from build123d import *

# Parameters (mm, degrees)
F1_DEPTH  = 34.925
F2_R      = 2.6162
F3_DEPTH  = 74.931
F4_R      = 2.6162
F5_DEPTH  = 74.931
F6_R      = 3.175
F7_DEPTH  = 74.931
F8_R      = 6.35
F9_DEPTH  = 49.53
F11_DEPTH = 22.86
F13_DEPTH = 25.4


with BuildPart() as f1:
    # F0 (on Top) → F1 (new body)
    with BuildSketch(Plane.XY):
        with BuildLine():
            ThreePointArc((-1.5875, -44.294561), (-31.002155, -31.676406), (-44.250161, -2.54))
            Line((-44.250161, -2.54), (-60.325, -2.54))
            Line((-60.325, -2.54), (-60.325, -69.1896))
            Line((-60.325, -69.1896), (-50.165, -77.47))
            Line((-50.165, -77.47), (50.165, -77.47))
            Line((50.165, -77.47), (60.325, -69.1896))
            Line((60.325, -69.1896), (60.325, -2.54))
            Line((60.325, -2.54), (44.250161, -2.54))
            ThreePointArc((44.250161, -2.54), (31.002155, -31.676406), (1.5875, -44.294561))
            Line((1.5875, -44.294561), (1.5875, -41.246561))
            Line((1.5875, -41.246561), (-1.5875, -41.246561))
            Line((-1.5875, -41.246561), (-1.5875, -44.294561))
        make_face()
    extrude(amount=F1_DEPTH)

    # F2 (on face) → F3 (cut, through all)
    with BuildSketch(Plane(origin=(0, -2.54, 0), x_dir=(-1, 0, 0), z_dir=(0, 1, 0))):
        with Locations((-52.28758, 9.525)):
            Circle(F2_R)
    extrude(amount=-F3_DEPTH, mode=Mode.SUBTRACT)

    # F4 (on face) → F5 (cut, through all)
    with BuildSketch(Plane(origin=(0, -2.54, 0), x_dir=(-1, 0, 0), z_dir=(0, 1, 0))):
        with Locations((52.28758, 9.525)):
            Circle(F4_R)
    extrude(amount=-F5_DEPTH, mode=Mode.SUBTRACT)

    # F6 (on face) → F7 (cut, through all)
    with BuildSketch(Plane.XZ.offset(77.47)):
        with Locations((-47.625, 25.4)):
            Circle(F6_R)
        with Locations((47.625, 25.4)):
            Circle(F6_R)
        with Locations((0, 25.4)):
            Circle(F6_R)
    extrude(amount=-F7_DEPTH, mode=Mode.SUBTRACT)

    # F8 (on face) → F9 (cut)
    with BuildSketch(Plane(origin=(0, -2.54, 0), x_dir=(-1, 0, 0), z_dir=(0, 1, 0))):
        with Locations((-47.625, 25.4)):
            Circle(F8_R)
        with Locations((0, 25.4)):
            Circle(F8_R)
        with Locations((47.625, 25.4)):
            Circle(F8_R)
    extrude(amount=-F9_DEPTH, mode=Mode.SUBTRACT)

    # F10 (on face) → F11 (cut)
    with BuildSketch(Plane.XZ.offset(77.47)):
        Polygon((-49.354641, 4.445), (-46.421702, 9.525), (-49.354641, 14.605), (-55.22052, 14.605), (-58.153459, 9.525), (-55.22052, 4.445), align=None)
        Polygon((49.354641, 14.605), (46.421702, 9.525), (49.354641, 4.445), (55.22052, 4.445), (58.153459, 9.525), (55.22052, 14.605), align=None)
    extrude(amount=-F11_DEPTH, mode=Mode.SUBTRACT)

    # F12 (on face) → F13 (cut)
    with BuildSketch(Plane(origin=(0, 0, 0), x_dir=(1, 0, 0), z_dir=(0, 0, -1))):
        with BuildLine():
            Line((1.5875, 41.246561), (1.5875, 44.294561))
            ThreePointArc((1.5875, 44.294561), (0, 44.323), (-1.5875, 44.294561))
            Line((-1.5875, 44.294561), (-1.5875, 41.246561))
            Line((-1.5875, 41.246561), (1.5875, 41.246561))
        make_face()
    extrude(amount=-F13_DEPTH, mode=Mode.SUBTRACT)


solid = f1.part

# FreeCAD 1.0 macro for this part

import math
import FreeCAD as App
import Part
import Sketcher
Q = App.Units.Quantity

doc = App.newDocument("Part")
body = doc.addObject("PartDesign::Body", "Body")

# Sketch on XY plane
sketch1 = body.newObject("Sketcher::SketchObject", "Sketch")
sketch1.AttachmentSupport = (doc.getObject("XY_Plane"), [""])
sketch1.MapMode = "FlatFace"
sketch1.addGeometry(Part.ArcOfCircle(Part.Circle(App.Vector(0, 0, 0), App.Vector(0, 0, 1), 44.3), math.radians(-177), math.radians(-92)), False)
sketch1.addGeometry(Part.LineSegment(App.Vector(-44.3, -2.5, 0), App.Vector(-60.3, -2.5, 0)), False)
sketch1.addGeometry(Part.LineSegment(App.Vector(-60.3, -2.5, 0), App.Vector(-60.3, -69.2, 0)), False)
sketch1.addGeometry(Part.LineSegment(App.Vector(-60.3, -69.2, 0), App.Vector(-50.2, -77.5, 0)), False)
sketch1.addGeometry(Part.LineSegment(App.Vector(-50.2, -77.5, 0), App.Vector(50.2, -77.5, 0)), False)
sketch1.addGeometry(Part.LineSegment(App.Vector(50.2, -77.5, 0), App.Vector(60.3, -69.2, 0)), False)
sketch1.addGeometry(Part.LineSegment(App.Vector(60.3, -69.2, 0), App.Vector(60.3, -2.5, 0)), False)
sketch1.addGeometry(Part.LineSegment(App.Vector(60.3, -2.5, 0), App.Vector(44.3, -2.5, 0)), False)
sketch1.addGeometry(Part.ArcOfCircle(Part.Circle(App.Vector(0, 0, 0), App.Vector(0, 0, 1), 44.3), math.radians(-88), math.radians(-3)), False)
sketch1.addGeometry(Part.LineSegment(App.Vector(1.6, -44.3, 0), App.Vector(1.6, -41.2, 0)), False)
sketch1.addGeometry(Part.LineSegment(App.Vector(1.6, -41.2, 0), App.Vector(-1.6, -41.2, 0)), False)
sketch1.addGeometry(Part.LineSegment(App.Vector(-1.6, -41.2, 0), App.Vector(-1.6, -44.3, 0)), False)
sketch1.addConstraint(Sketcher.Constraint("Coincident", 0, 1, 1, 1))
sketch1.addConstraint(Sketcher.Constraint("Coincident", 1, 2, 2, 1))
sketch1.addConstraint(Sketcher.Constraint("Coincident", 2, 2, 3, 1))
sketch1.addConstraint(Sketcher.Constraint("Coincident", 3, 2, 4, 1))
sketch1.addConstraint(Sketcher.Constraint("Coincident", 4, 2, 5, 1))
sketch1.addConstraint(Sketcher.Constraint("Coincident", 5, 2, 6, 1))
sketch1.addConstraint(Sketcher.Constraint("Coincident", 6, 2, 7, 1))
sketch1.addConstraint(Sketcher.Constraint("Coincident", 7, 2, 8, 2))
sketch1.addConstraint(Sketcher.Constraint("Coincident", 8, 1, 9, 1))
sketch1.addConstraint(Sketcher.Constraint("Coincident", 9, 2, 10, 1))
sketch1.addConstraint(Sketcher.Constraint("Coincident", 10, 2, 11, 1))
sketch1.addConstraint(Sketcher.Constraint("Coincident", 11, 2, 0, 2))
sketch1.addConstraint(Sketcher.Constraint("Horizontal", 1))
sketch1.addConstraint(Sketcher.Constraint("Vertical", 2))
sketch1.addConstraint(Sketcher.Constraint("Horizontal", 4))
sketch1.addConstraint(Sketcher.Constraint("Vertical", 6))
sketch1.addConstraint(Sketcher.Constraint("Horizontal", 7))
sketch1.addConstraint(Sketcher.Constraint("Vertical", 9))
sketch1.addConstraint(Sketcher.Constraint("Horizontal", 10))
sketch1.addConstraint(Sketcher.Constraint("Vertical", 11))
sketch1.addConstraint(Sketcher.Constraint("Coincident", 0, 3, -1, 1))
sketch1.addConstraint(Sketcher.Constraint("Coincident", 8, 3, -1, 1))
sketch1.addConstraint(Sketcher.Constraint("Equal", 0, 8))
sketch1.addConstraint(Sketcher.Constraint("Symmetric", 2, 2, 5, 2, -2))
sketch1.addConstraint(Sketcher.Constraint("Horizontal", 1, 2, 6, 2))
sketch1.addConstraint(Sketcher.Constraint("Horizontal", 8, 1, 11, 2))
sketch1.addConstraint(Sketcher.Constraint("Equal", 3, 5))
sketch1.addConstraint(Sketcher.Constraint("Radius", 0, Q("1.745 in")))
sketch1.addConstraint(Sketcher.Constraint("DistanceX", 4, 1, 4, 2, Q("3.95 in")))
sketch1.addConstraint(Sketcher.Constraint("DistanceY", 9, 1, 9, 2, Q("0.12 in")))
sketch1.addConstraint(Sketcher.Constraint("DistanceY", 0, 1, -1, 1, Q("0.1 in")))
sketch1.addConstraint(Sketcher.Constraint("DistanceX", 2, 2, 3, 2, Q("0.4 in")))
sketch1.addConstraint(Sketcher.Constraint("DistanceX", 10, 2, 10, 1, Q("0.125 in")))
sketch1.addConstraint(Sketcher.Constraint("DistanceY", 2, 2, 2, 1, Q("2.624 in")))
sketch1.addConstraint(Sketcher.Constraint("DistanceY", 3, 2, -1, 1, Q("3.05 in")))
pad1 = body.newObject("PartDesign::Pad", "Pad")
pad1.Profile = sketch1
pad1.Length = Q("1.375 in")

# Sketch on XZ plane
sketch2 = body.newObject("Sketcher::SketchObject", "Sketch001")
sketch2.AttachmentSupport = (doc.getObject("XZ_Plane"), [""])
sketch2.MapMode = "FlatFace"
sketch2.AttachmentOffset = App.Placement(App.Vector(0, 0, 0.1 * 25.4), App.Rotation())
sketch2.addGeometry(Part.Circle(App.Vector(52.3, 9.5, 0), App.Vector(0, 0, 1), 2.6), False)
sketch2.addConstraint(Sketcher.Constraint("Diameter", 0, Q("0.206 in")))
sketch2.addConstraint(Sketcher.Constraint("DistanceY", -1, 1, 0, 3, Q("0.375 in")))
sketch2.addConstraint(Sketcher.Constraint("DistanceX", -1, 1, 0, 3, Q("52.28758 mm")))
pocket1 = body.newObject("PartDesign::Pocket", "Pocket")
pocket1.Profile = sketch2
pocket1.Type = "ThroughAll"
pocket1.Reversed = True

# Sketch on XZ plane
sketch3 = body.newObject("Sketcher::SketchObject", "Sketch002")
sketch3.AttachmentSupport = (doc.getObject("XZ_Plane"), [""])
sketch3.MapMode = "FlatFace"
sketch3.AttachmentOffset = App.Placement(App.Vector(0, 0, 0.1 * 25.4), App.Rotation())
sketch3.addGeometry(Part.Circle(App.Vector(-52.3, 9.5, 0), App.Vector(0, 0, 1), 2.6), False)
sketch3.addConstraint(Sketcher.Constraint("Diameter", 0, Q("0.206 in")))
sketch3.addConstraint(Sketcher.Constraint("DistanceY", -1, 1, 0, 3, Q("0.375 in")))
sketch3.addConstraint(Sketcher.Constraint("DistanceX", 0, 3, -1, 1, Q("52.28758 mm")))
pocket2 = body.newObject("PartDesign::Pocket", "Pocket001")
pocket2.Profile = sketch3
pocket2.Type = "ThroughAll"
pocket2.Reversed = True

# Sketch on XZ plane
sketch4 = body.newObject("Sketcher::SketchObject", "Sketch003")
sketch4.AttachmentSupport = (doc.getObject("XZ_Plane"), [""])
sketch4.MapMode = "FlatFace"
sketch4.AttachmentOffset = App.Placement(App.Vector(0, 0, 3.05 * 25.4), App.Rotation())
sketch4.addGeometry(Part.Circle(App.Vector(-47.6, 25.4, 0), App.Vector(0, 0, 1), 3.2), False)
sketch4.addGeometry(Part.Circle(App.Vector(47.6, 25.4, 0), App.Vector(0, 0, 1), 3.2), False)
sketch4.addGeometry(Part.Circle(App.Vector(0, 25.4, 0), App.Vector(0, 0, 1), 3.2), False)
sketch4.addConstraint(Sketcher.Constraint("Equal", 0, 1))
sketch4.addConstraint(Sketcher.Constraint("Equal", 1, 2))
sketch4.addConstraint(Sketcher.Constraint("Symmetric", 0, 3, 1, 3, -2))
sketch4.addConstraint(Sketcher.Constraint("PointOnObject", 2, 3, -2))
sketch4.addConstraint(Sketcher.Constraint("Horizontal", 1, 3, 2, 3))
sketch4.addConstraint(Sketcher.Constraint("Diameter", 0, Q("0.25 in")))
sketch4.addConstraint(Sketcher.Constraint("DistanceY", -1, 1, 0, 3, Q("1 in")))
sketch4.addConstraint(Sketcher.Constraint("DistanceX", 0, 3, 1, 3, Q("3.75 in")))
pocket3 = body.newObject("PartDesign::Pocket", "Pocket002")
pocket3.Profile = sketch4
pocket3.Type = "ThroughAll"

# Sketch on XZ plane
sketch5 = body.newObject("Sketcher::SketchObject", "Sketch004")
sketch5.AttachmentSupport = (doc.getObject("XZ_Plane"), [""])
sketch5.MapMode = "FlatFace"
sketch5.AttachmentOffset = App.Placement(App.Vector(0, 0, 0.1 * 25.4), App.Rotation())
sketch5.addGeometry(Part.Circle(App.Vector(48, 25, 0), App.Vector(0, 0, 1), 6), False)
sketch5.addGeometry(Part.Circle(App.Vector(0, 25, 0), App.Vector(0, 0, 1), 6), False)
sketch5.addGeometry(Part.Circle(App.Vector(-48, 25, 0), App.Vector(0, 0, 1), 6), False)
sketch5.addConstraint(Sketcher.Constraint("Equal", 0, 1))
sketch5.addConstraint(Sketcher.Constraint("Equal", 1, 2))
sketch5.addConstraint(Sketcher.Constraint("Symmetric", 0, 3, 2, 3, -2))
sketch5.addConstraint(Sketcher.Constraint("PointOnObject", 1, 3, -2))
sketch5.addConstraint(Sketcher.Constraint("Horizontal", 0, 3, 1, 3))
sketch5.addConstraint(Sketcher.Constraint("Diameter", 0, Q("0.5 in")))
sketch5.addConstraint(Sketcher.Constraint("DistanceY", -1, 1, 0, 3, Q("1 in")))
sketch5.addConstraint(Sketcher.Constraint("DistanceX", 2, 3, 0, 3, Q("3.75 in")))
pocket4 = body.newObject("PartDesign::Pocket", "Pocket003")
pocket4.Profile = sketch5
pocket4.Length = Q("1.95 in")
pocket4.Reversed = True

# Sketch on XZ plane
sketch6 = body.newObject("Sketcher::SketchObject", "Sketch005")
sketch6.AttachmentSupport = (doc.getObject("XZ_Plane"), [""])
sketch6.MapMode = "FlatFace"
sketch6.AttachmentOffset = App.Placement(App.Vector(0, 0, 3.05 * 25.4), App.Rotation())
sketch6.addGeometry(Part.LineSegment(App.Vector(-49, 4, 0), App.Vector(-46, 10, 0)), False)
sketch6.addGeometry(Part.LineSegment(App.Vector(-46, 10, 0), App.Vector(-49, 15, 0)), False)
sketch6.addGeometry(Part.LineSegment(App.Vector(-49, 15, 0), App.Vector(-55, 15, 0)), False)
sketch6.addGeometry(Part.LineSegment(App.Vector(-55, 15, 0), App.Vector(-58, 10, 0)), False)
sketch6.addGeometry(Part.LineSegment(App.Vector(-58, 10, 0), App.Vector(-55, 4, 0)), False)
sketch6.addGeometry(Part.LineSegment(App.Vector(-55, 4, 0), App.Vector(-49, 4, 0)), False)
sketch6.addGeometry(Part.LineSegment(App.Vector(49, 15, 0), App.Vector(46, 10, 0)), False)
sketch6.addGeometry(Part.LineSegment(App.Vector(46, 10, 0), App.Vector(49, 4, 0)), False)
sketch6.addGeometry(Part.LineSegment(App.Vector(49, 4, 0), App.Vector(55, 4, 0)), False)
sketch6.addGeometry(Part.LineSegment(App.Vector(55, 4, 0), App.Vector(58, 10, 0)), False)
sketch6.addGeometry(Part.LineSegment(App.Vector(58, 10, 0), App.Vector(55, 15, 0)), False)
sketch6.addGeometry(Part.LineSegment(App.Vector(55, 15, 0), App.Vector(49, 15, 0)), False)
sketch6.addConstraint(Sketcher.Constraint("Coincident", 0, 2, 1, 1))
sketch6.addConstraint(Sketcher.Constraint("Coincident", 1, 2, 2, 1))
sketch6.addConstraint(Sketcher.Constraint("Coincident", 2, 2, 3, 1))
sketch6.addConstraint(Sketcher.Constraint("Coincident", 3, 2, 4, 1))
sketch6.addConstraint(Sketcher.Constraint("Coincident", 4, 2, 5, 1))
sketch6.addConstraint(Sketcher.Constraint("Coincident", 5, 2, 0, 1))
sketch6.addConstraint(Sketcher.Constraint("Coincident", 6, 2, 7, 1))
sketch6.addConstraint(Sketcher.Constraint("Coincident", 7, 2, 8, 1))
sketch6.addConstraint(Sketcher.Constraint("Coincident", 8, 2, 9, 1))
sketch6.addConstraint(Sketcher.Constraint("Coincident", 9, 2, 10, 1))
sketch6.addConstraint(Sketcher.Constraint("Coincident", 10, 2, 11, 1))
sketch6.addConstraint(Sketcher.Constraint("Coincident", 11, 2, 6, 1))
sketch6.addConstraint(Sketcher.Constraint("Horizontal", 2))
sketch6.addConstraint(Sketcher.Constraint("Horizontal", 5))
sketch6.addConstraint(Sketcher.Constraint("Horizontal", 8))
sketch6.addConstraint(Sketcher.Constraint("Horizontal", 11))
sketch6.addConstraint(Sketcher.Constraint("Symmetric", 0, 2, 6, 2, -2))
sketch6.addConstraint(Sketcher.Constraint("Symmetric", 5, 2, 7, 2, -2))
sketch6.addConstraint(Sketcher.Constraint("Symmetric", 3, 2, 9, 2, -2))
sketch6.addConstraint(Sketcher.Constraint("Symmetric", 2, 2, 10, 2, -2))
sketch6.addConstraint(Sketcher.Constraint("Parallel", 0, 3))
sketch6.addConstraint(Sketcher.Constraint("Parallel", 1, 4))
sketch6.addConstraint(Sketcher.Constraint("Parallel", 3, 6))
sketch6.addConstraint(Sketcher.Constraint("Parallel", 4, 7))
sketch6.addConstraint(Sketcher.Constraint("Parallel", 6, 9))
sketch6.addConstraint(Sketcher.Constraint("Horizontal", 0, 2, 3, 2))
sketch6.addConstraint(Sketcher.Constraint("Vertical", 2, 2, 4, 2))
sketch6.addConstraint(Sketcher.Constraint("Angle", 0, Q("60.000003 deg")))
sketch6.addConstraint(Sketcher.Constraint("DistanceY", 0, 2, 1, 2, Q("0.2 in")))
sketch6.addConstraint(Sketcher.Constraint("DistanceY", -1, 1, 0, 2, Q("0.375 in")))
sketch6.addConstraint(Sketcher.Constraint("DistanceX", 2, 2, 2, 1, Q("5.865879 mm")))
sketch6.addConstraint(Sketcher.Constraint("DistanceX", 1, 2, 9, 2, Q("107.5081 mm")))
pocket5 = body.newObject("PartDesign::Pocket", "Pocket004")
pocket5.Profile = sketch6
pocket5.Length = Q("0.9 in")

# Sketch on XY plane
sketch7 = body.newObject("Sketcher::SketchObject", "Sketch006")
sketch7.AttachmentSupport = (doc.getObject("XY_Plane"), [""])
sketch7.MapMode = "FlatFace"
sketch7.addGeometry(Part.LineSegment(App.Vector(1.6, -41.2, 0), App.Vector(1.6, -44.3, 0)), False)
sketch7.addGeometry(Part.ArcOfCircle(Part.Circle(App.Vector(0, 0, 0), App.Vector(0, 0, 1), 44.3), math.radians(-92.05), math.radians(-87.95)), False)
sketch7.addGeometry(Part.LineSegment(App.Vector(-1.6, -44.3, 0), App.Vector(-1.6, -41.2, 0)), False)
sketch7.addGeometry(Part.LineSegment(App.Vector(-1.6, -41.2, 0), App.Vector(1.6, -41.2, 0)), False)
sketch7.addConstraint(Sketcher.Constraint("Coincident", 0, 2, 1, 2))
sketch7.addConstraint(Sketcher.Constraint("Coincident", 1, 1, 2, 1))
sketch7.addConstraint(Sketcher.Constraint("Coincident", 2, 2, 3, 1))
sketch7.addConstraint(Sketcher.Constraint("Coincident", 3, 2, 0, 1))
sketch7.addConstraint(Sketcher.Constraint("Vertical", 0))
sketch7.addConstraint(Sketcher.Constraint("Vertical", 2))
sketch7.addConstraint(Sketcher.Constraint("Horizontal", 3))
sketch7.addConstraint(Sketcher.Constraint("Symmetric", 0, 2, 1, 1, -2))
sketch7.addConstraint(Sketcher.Constraint("DistanceY", 0, 2, 0, 1, Q("0.12 in")))
sketch7.addConstraint(Sketcher.Constraint("DistanceX", 3, 1, 3, 2, Q("0.125 in")))
sketch7.addConstraint(Sketcher.Constraint("Radius", 1, Q("44.322322 mm")))
sketch7.addConstraint(Sketcher.Constraint("DistanceY", 1, 3, -1, 1, Q("0.000678 mm")))
pocket6 = body.newObject("PartDesign::Pocket", "Pocket005")
pocket6.Profile = sketch7
pocket6.Length = Q("1 in")
pocket6.Reversed = True

doc.recompute()
